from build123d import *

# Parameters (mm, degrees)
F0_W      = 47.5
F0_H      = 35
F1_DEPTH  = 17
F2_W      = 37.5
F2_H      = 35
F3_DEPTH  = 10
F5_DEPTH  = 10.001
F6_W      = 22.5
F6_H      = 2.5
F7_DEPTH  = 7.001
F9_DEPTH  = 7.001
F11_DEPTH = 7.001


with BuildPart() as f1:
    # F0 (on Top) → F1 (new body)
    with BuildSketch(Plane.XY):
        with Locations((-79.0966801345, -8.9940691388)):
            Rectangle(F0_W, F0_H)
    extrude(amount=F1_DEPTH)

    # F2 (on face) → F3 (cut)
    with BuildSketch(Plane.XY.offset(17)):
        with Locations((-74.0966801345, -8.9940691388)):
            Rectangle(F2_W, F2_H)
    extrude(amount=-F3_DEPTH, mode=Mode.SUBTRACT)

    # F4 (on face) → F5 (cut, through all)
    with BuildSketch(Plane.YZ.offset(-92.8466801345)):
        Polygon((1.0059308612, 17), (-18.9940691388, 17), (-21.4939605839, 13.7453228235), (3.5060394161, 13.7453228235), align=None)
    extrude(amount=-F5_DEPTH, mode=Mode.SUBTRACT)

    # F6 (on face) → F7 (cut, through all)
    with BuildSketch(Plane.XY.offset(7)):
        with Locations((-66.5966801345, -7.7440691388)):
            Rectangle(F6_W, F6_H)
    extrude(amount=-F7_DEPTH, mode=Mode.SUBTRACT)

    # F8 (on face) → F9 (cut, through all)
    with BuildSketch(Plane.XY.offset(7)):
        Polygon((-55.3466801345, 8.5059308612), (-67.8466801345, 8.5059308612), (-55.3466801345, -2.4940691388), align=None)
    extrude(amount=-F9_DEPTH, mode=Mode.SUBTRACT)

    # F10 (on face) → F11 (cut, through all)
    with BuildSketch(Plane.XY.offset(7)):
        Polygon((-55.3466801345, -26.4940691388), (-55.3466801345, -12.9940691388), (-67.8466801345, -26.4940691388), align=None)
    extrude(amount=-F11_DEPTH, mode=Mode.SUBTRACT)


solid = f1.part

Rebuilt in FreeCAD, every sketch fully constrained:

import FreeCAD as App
import Part
import Sketcher
from FreeCAD import Vector
Q = App.Units.Quantity

doc = App.newDocument("Part")
body = doc.addObject("PartDesign::Body", "Body")

# Sketch on XY plane
sketch1 = doc.addObject("Sketcher::SketchObject", "Sketch")
body.addObject(sketch1)
sketch1.AttachmentSupport = (doc.XY_Plane, [""])
sketch1.MapMode = "FlatFace"
sketch1.addGeometry([
    Part.LineSegment(Vector(-103, 9, 0), Vector(-103, -26, 0)),
    Part.LineSegment(Vector(-103, -26, 0), Vector(-55, -26, 0)),
    Part.LineSegment(Vector(-55, -26, 0), Vector(-55, 9, 0)),
    Part.LineSegment(Vector(-55, 9, 0), Vector(-103, 9, 0)),
], False)
sketch1.addConstraint([
    Sketcher.Constraint("Coincident", 0, 2, 1, 1),
    Sketcher.Constraint("Coincident", 1, 2, 2, 1),
    Sketcher.Constraint("Coincident", 2, 2, 3, 1),
    Sketcher.Constraint("Coincident", 3, 2, 0, 1),
    Sketcher.Constraint("Vertical", 0),
    Sketcher.Constraint("Horizontal", 1),
    Sketcher.Constraint("Vertical", 2),
    Sketcher.Constraint("Horizontal", 3),
    Sketcher.Constraint("DistanceY", 0, 2, 0, 1, 35.0),
    Sketcher.Constraint("DistanceX", 1, 1, 1, 2, 47.5),
    Sketcher.Constraint("DistanceX", 0, 2, -1, 1, 102.84668),
    Sketcher.Constraint("DistanceY", 0, 2, -1, 1, 26.494069),
])
pad1 = doc.addObject("PartDesign::Pad", "Pad")
body.addObject(pad1)
pad1.Profile = sketch1
pad1.Length = 17

# Sketch on XY plane
sketch2 = doc.addObject("Sketcher::SketchObject", "Sketch001")
body.addObject(sketch2)
sketch2.AttachmentSupport = (doc.XY_Plane, [""])
sketch2.MapMode = "FlatFace"
sketch2.AttachmentOffset = App.Placement(Vector(0, 0, 17), App.Rotation())
sketch2.addGeometry([
    Part.LineSegment(Vector(-93, 9, 0), Vector(-93, -26, 0)),
    Part.LineSegment(Vector(-93, -26, 0), Vector(-55, -26, 0)),
    Part.LineSegment(Vector(-55, -26, 0), Vector(-55, 9, 0)),
    Part.LineSegment(Vector(-55, 9, 0), Vector(-93, 9, 0)),
], False)
sketch2.addConstraint([
    Sketcher.Constraint("Coincident", 0, 2, 1, 1),
    Sketcher.Constraint("Coincident", 1, 2, 2, 1),
    Sketcher.Constraint("Coincident", 2, 2, 3, 1),
    Sketcher.Constraint("Coincident", 3, 2, 0, 1),
    Sketcher.Constraint("Vertical", 0),
    Sketcher.Constraint("Horizontal", 1),
    Sketcher.Constraint("Vertical", 2),
    Sketcher.Constraint("Horizontal", 3),
    Sketcher.Constraint("DistanceY", 0, 2, 0, 1, 35.0),
    Sketcher.Constraint("DistanceX", 1, 1, 1, 2, 37.5),
    Sketcher.Constraint("DistanceX", 0, 2, -1, 1, 92.84668),
    Sketcher.Constraint("DistanceY", 0, 2, -1, 1, 26.494069),
])
pocket1 = doc.addObject("PartDesign::Pocket", "Pocket")
body.addObject(pocket1)
pocket1.Profile = sketch2
pocket1.Length = 10

# Sketch on YZ plane
sketch3 = doc.addObject("Sketcher::SketchObject", "Sketch002")
body.addObject(sketch3)
sketch3.AttachmentSupport = (doc.YZ_Plane, [""])
sketch3.MapMode = "FlatFace"
sketch3.AttachmentOffset = App.Placement(Vector(0, 0, -92.84668), App.Rotation())
sketch3.addGeometry([
    Part.LineSegment(Vector(1, 17, 0), Vector(-19, 17, 0)),
    Part.LineSegment(Vector(-19, 17, 0), Vector(-21.5, 13.7, 0)),
    Part.LineSegment(Vector(-21.5, 13.7, 0), Vector(3.5, 13.7, 0)),
    Part.LineSegment(Vector(3.5, 13.7, 0), Vector(1, 17, 0)),
], False)
sketch3.addConstraint([
    Sketcher.Constraint("Coincident", 0, 2, 1, 1),
    Sketcher.Constraint("Coincident", 1, 2, 2, 1),
    Sketcher.Constraint("Coincident", 2, 2, 3, 1),
    Sketcher.Constraint("Coincident", 3, 2, 0, 1),
    Sketcher.Constraint("Horizontal", 0),
    Sketcher.Constraint("Horizontal", 2),
    Sketcher.Constraint("DistanceX", 0, 2, 0, 1, 20.0),
    Sketcher.Constraint("DistanceX", 2, 1, 2, 2, 25.0),
    Sketcher.Constraint("DistanceY", -1, 1, 0, 2, 17.0),
    Sketcher.Constraint("Angle", 3, Q("127.529981 deg")),
    Sketcher.Constraint("Distance", 3, 4.104079),
    Sketcher.Constraint("DistanceX", 0, 2, -1, 1, 18.994069),
])
pocket2 = doc.addObject("PartDesign::Pocket", "Pocket001")
body.addObject(pocket2)
pocket2.Profile = sketch3
pocket2.Type = "ThroughAll"

# Sketch on XY plane
sketch4 = doc.addObject("Sketcher::SketchObject", "Sketch003")
body.addObject(sketch4)
sketch4.AttachmentSupport = (doc.XY_Plane, [""])
sketch4.MapMode = "FlatFace"
sketch4.AttachmentOffset = App.Placement(Vector(0, 0, 7), App.Rotation())
sketch4.addGeometry([
    Part.LineSegment(Vector(-77.8, -6.5, 0), Vector(-77.8, -9, 0)),
    Part.LineSegment(Vector(-77.8, -9, 0), Vector(-55.3, -9, 0)),
    Part.LineSegment(Vector(-55.3, -9, 0), Vector(-55.3, -6.5, 0)),
    Part.LineSegment(Vector(-55.3, -6.5, 0), Vector(-77.8, -6.5, 0)),
], False)
sketch4.addConstraint([
    Sketcher.Constraint("Coincident", 0, 2, 1, 1),
    Sketcher.Constraint("Coincident", 1, 2, 2, 1),
    Sketcher.Constraint("Coincident", 2, 2, 3, 1),
    Sketcher.Constraint("Coincident", 3, 2, 0, 1),
    Sketcher.Constraint("Vertical", 0),
    Sketcher.Constraint("Horizontal", 1),
    Sketcher.Constraint("Vertical", 2),
    Sketcher.Constraint("Horizontal", 3),
    Sketcher.Constraint("DistanceX", 1, 1, 1, 2, 22.5),
    Sketcher.Constraint("DistanceY", 0, 2, 0, 1, 2.5),
    Sketcher.Constraint("DistanceX", 0, 2, -1, 1, 77.84668),
    Sketcher.Constraint("DistanceY", 0, 2, -1, 1, 8.994069),
])
pocket3 = doc.addObject("PartDesign::Pocket", "Pocket002")
body.addObject(pocket3)
pocket3.Profile = sketch4
pocket3.Type = "ThroughAll"

# Sketch on XY plane
sketch5 = doc.addObject("Sketcher::SketchObject", "Sketch004")
body.addObject(sketch5)
sketch5.AttachmentSupport = (doc.XY_Plane, [""])
sketch5.MapMode = "FlatFace"
sketch5.AttachmentOffset = App.Placement(Vector(0, 0, 7), App.Rotation())
sketch5.addGeometry([
    Part.LineSegment(Vector(-55, 9, 0), Vector(-68, 9, 0)),
    Part.LineSegment(Vector(-68, 9, 0), Vector(-55, -2, 0)),
    Part.LineSegment(Vector(-55, -2, 0), Vector(-55, 9, 0)),
], False)
sketch5.addConstraint([
    Sketcher.Constraint("Coincident", 0, 2, 1, 1),
    Sketcher.Constraint("Coincident", 1, 2, 2, 1),
    Sketcher.Constraint("Coincident", 2, 2, 0, 1),
    Sketcher.Constraint("Horizontal", 0),
    Sketcher.Constraint("Vertical", 2),
    Sketcher.Constraint("DistanceY", 2, 1, 2, 2, 11.0),
    Sketcher.Constraint("DistanceX", 0, 2, 0, 1, 12.5),
    Sketcher.Constraint("DistanceX", 0, 2, -1, 1, 67.84668),
    Sketcher.Constraint("DistanceY", -1, 1, 0, 2, 8.505931),
])
pocket4 = doc.addObject("PartDesign::Pocket", "Pocket003")
body.addObject(pocket4)
pocket4.Profile = sketch5
pocket4.Type = "ThroughAll"

# Sketch on XY plane
sketch6 = doc.addObject("Sketcher::SketchObject", "Sketch005")
body.addObject(sketch6)
sketch6.AttachmentSupport = (doc.XY_Plane, [""])
sketch6.MapMode = "FlatFace"
sketch6.AttachmentOffset = App.Placement(Vector(0, 0, 7), App.Rotation())
sketch6.addGeometry([
    Part.LineSegment(Vector(-55, -26, 0), Vector(-55, -13, 0)),
    Part.LineSegment(Vector(-55, -13, 0), Vector(-68, -26, 0)),
    Part.LineSegment(Vector(-68, -26, 0), Vector(-55, -26, 0)),
], False)
sketch6.addConstraint([
    Sketcher.Constraint("Coincident", 0, 2, 1, 1),
    Sketcher.Constraint("Coincident", 1, 2, 2, 1),
    Sketcher.Constraint("Coincident", 2, 2, 0, 1),
    Sketcher.Constraint("Vertical", 0),
    Sketcher.Constraint("Horizontal", 2),
    Sketcher.Constraint("DistanceX", 2, 1, 2, 2, 12.5),
    Sketcher.Constraint("DistanceY", 0, 1, 0, 2, 13.5),
    Sketcher.Constraint("DistanceX", 0, 2, -1, 1, 55.34668),
    Sketcher.Constraint("DistanceY", 0, 2, -1, 1, 12.994069),
])
pocket5 = doc.addObject("PartDesign::Pocket", "Pocket004")
body.addObject(pocket5)
pocket5.Profile = sketch6
pocket5.Type = "ThroughAll"

doc.recompute()
